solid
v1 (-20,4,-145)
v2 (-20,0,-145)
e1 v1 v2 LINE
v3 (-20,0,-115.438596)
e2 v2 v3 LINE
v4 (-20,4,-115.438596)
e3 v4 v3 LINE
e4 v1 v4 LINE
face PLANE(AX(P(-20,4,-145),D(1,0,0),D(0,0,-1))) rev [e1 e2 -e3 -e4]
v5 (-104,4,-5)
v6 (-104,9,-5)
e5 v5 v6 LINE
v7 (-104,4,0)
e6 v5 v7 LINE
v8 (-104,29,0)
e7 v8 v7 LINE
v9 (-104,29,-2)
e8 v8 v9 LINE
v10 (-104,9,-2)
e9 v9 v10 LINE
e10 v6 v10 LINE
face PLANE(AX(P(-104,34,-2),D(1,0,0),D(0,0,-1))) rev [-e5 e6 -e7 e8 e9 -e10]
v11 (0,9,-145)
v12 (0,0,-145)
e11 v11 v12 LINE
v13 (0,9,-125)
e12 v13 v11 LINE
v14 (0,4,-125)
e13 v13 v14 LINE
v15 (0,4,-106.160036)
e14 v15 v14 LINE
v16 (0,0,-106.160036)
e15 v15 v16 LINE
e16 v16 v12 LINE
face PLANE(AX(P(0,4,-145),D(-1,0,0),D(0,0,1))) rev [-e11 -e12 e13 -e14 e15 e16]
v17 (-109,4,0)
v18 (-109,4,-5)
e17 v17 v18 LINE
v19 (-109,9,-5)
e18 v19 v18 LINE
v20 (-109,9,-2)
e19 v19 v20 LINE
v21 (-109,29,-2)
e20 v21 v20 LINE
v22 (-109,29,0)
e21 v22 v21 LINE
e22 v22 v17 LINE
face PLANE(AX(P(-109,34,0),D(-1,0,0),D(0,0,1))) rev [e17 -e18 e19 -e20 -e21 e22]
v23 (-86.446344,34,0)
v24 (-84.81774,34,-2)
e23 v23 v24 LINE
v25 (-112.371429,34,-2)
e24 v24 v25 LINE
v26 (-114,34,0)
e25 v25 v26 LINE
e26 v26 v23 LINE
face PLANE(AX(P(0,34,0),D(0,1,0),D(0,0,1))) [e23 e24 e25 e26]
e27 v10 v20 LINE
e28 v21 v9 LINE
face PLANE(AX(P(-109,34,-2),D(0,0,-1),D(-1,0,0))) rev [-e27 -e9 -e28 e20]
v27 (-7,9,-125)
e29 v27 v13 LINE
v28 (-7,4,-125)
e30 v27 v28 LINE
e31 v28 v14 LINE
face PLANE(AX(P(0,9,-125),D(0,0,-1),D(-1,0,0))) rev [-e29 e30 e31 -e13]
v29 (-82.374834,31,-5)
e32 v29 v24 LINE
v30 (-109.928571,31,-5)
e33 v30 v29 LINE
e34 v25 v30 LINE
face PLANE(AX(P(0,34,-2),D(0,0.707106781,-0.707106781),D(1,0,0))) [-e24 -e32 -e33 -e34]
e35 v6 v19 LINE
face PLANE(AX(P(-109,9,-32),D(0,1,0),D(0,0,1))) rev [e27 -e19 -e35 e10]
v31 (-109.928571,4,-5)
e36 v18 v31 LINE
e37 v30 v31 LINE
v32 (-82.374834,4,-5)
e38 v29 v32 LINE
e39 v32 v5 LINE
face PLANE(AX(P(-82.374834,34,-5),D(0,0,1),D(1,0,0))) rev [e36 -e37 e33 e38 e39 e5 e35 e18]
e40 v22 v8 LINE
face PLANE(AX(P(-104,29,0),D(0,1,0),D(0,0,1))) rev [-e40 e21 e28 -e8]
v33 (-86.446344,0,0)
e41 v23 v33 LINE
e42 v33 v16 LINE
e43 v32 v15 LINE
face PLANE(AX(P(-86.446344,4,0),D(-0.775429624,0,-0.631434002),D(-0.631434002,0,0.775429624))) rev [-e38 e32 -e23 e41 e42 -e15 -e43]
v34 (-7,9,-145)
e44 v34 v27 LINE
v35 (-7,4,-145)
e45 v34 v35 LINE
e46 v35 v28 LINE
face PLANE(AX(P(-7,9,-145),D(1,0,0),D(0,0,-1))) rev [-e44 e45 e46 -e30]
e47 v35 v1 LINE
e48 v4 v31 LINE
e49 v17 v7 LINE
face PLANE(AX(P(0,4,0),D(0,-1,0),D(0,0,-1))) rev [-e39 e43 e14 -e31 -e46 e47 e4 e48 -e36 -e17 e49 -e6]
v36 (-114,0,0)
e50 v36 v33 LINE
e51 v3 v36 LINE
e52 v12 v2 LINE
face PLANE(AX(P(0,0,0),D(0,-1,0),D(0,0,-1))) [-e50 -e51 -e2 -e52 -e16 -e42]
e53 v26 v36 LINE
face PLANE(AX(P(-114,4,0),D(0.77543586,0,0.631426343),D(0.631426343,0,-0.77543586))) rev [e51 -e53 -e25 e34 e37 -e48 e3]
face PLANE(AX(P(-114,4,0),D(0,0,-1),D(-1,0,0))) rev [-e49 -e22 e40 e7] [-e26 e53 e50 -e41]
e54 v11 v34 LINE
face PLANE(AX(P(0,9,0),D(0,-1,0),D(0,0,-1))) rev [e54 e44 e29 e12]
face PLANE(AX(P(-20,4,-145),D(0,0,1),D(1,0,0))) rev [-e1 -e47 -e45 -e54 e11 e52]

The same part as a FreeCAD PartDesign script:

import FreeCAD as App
import Part
import Sketcher
from FreeCAD import Vector


def edges_at(feature, points):
    """Names of the edges that pass closest to the given points."""
    edges = feature.Shape.Edges
    near = lambda p: min(range(len(edges)), key=lambda i: edges[i].distToShape(Part.Vertex(*p))[0])
    return sorted({f"Edge{near(p) + 1}" for p in points})

doc = App.newDocument("Part")
body = doc.addObject("PartDesign::Body", "Body")

# Sketch on XZ plane
sketch1 = body.newObject("Sketcher::SketchObject", "Sketch")
sketch1.AttachmentSupport = (doc.getObject("XZ_Plane"), [""])
sketch1.MapMode = "FlatFace"
sketch1.addGeometry([
    Part.LineSegment(Vector(-114, 0, 0), Vector(-86, 0, 0)),  # 0
    Part.LineSegment(Vector(-86, 0, 0), Vector(0, -106, 0)),  # 1
    Part.LineSegment(Vector(0, -106, 0), Vector(0, -145, 0)),  # 2
    Part.LineSegment(Vector(0, -145, 0), Vector(-20, -145, 0)),  # 3
    Part.LineSegment(Vector(-20, -145, 0), Vector(-20, -115, 0)),  # 4
    Part.LineSegment(Vector(-20, -115, 0), Vector(-114, 0, 0)),  # 5
], False)
sketch1.addConstraint([
    Sketcher.Constraint("Coincident", 0, 2, 1, 1),
    Sketcher.Constraint("Coincident", 1, 2, 2, 1),
    Sketcher.Constraint("Coincident", 2, 2, 3, 1),
    Sketcher.Constraint("Coincident", 3, 2, 4, 1),
    Sketcher.Constraint("Coincident", 4, 2, 5, 1),
    Sketcher.Constraint("Coincident", 5, 2, 0, 1),
    Sketcher.Constraint("Horizontal", 0),
    Sketcher.Constraint("Vertical", 2),
    Sketcher.Constraint("Horizontal", 3),
    Sketcher.Constraint("Vertical", 4),
    Sketcher.Constraint("PointOnObject", 0, 2, -1),
    Sketcher.Constraint("PointOnObject", 1, 2, -2),
    Sketcher.Constraint("DistanceX", 3, 2, 3, 1, 20.0),
    Sketcher.Constraint("DistanceY", 2, 2, -1, 1, 145.0),
    Sketcher.Constraint("DistanceX", 5, 2, -1, 1, 114.0),
    Sketcher.Constraint("DistanceX", 0, 1, 0, 2, 27.553656),
    Sketcher.Constraint("DistanceY", 2, 2, 2, 1, 38.839964),
    Sketcher.Constraint("DistanceY", 4, 1, 4, 2, 29.561404),
])
pad1 = body.newObject("PartDesign::Pad", "Pad")
pad1.Profile = sketch1
pad1.Length = 4
pad1.Reversed = True

# Sketch on XZ plane
sketch2 = body.newObject("Sketcher::SketchObject", "Sketch001")
sketch2.AttachmentSupport = (doc.getObject("XZ_Plane"), [""])
sketch2.MapMode = "FlatFace"
sketch2.AttachmentOffset = App.Placement(Vector(0, 0, -4), App.Rotation())
sketch2.addGeometry([
    Part.LineSegment(Vector(-7, -145, 0), Vector(-7, -125, 0)),
    Part.LineSegment(Vector(-7, -125, 0), Vector(0, -125, 0)),
    Part.LineSegment(Vector(0, -125, 0), Vector(0, -145, 0)),
    Part.LineSegment(Vector(0, -145, 0), Vector(-7, -145, 0)),
], False)
sketch2.addConstraint([
    Sketcher.Constraint("Coincident", 0, 2, 1, 1),
    Sketcher.Constraint("Coincident", 1, 2, 2, 1),
    Sketcher.Constraint("Coincident", 2, 2, 3, 1),
    Sketcher.Constraint("Coincident", 3, 2, 0, 1),
    Sketcher.Constraint("Vertical", 0),
    Sketcher.Constraint("Horizontal", 1),
    Sketcher.Constraint("Vertical", 2),
    Sketcher.Constraint("Horizontal", 3),
    Sketcher.Constraint("PointOnObject", 1, 2, -2),
    Sketcher.Constraint("DistanceX", 1, 1, 1, 2, 7.0),
    Sketcher.Constraint("DistanceY", 0, 1, 0, 2, 20.0),
    Sketcher.Constraint("DistanceY", 0, 2, -1, 1, 125.0),
])
pad2 = body.newObject("PartDesign::Pad", "Pad001")
pad2.Profile = sketch2
pad2.Length = 5
pad2.Reversed = True

# Sketch on XZ plane
sketch3 = body.newObject("Sketcher::SketchObject", "Sketch002")
sketch3.AttachmentSupport = (doc.getObject("XZ_Plane"), [""])
sketch3.MapMode = "FlatFace"
sketch3.AttachmentOffset = App.Placement(Vector(0, 0, -4), App.Rotation())
sketch3.addGeometry([
    Part.LineSegment(Vector(-104, 0, 0), Vector(-86.4, 0, 0)),  # 0
    Part.LineSegment(Vector(-86.4, 0, 0), Vector(-82.4, -5, 0)),  # 1
    Part.LineSegment(Vector(-82.4, -5, 0), Vector(-109.9, -5, 0)),  # 2
    Part.LineSegment(Vector(-109.9, -5, 0), Vector(-114, 0, 0)),  # 3
    Part.LineSegment(Vector(-114, 0, 0), Vector(-109, 0, 0)),  # 4
    Part.LineSegment(Vector(-109, 0, 0), Vector(-109, -2, 0)),  # 5
    Part.LineSegment(Vector(-109, -2, 0), Vector(-104, -2, 0)),  # 6
    Part.LineSegment(Vector(-104, -2, 0), Vector(-104, 0, 0)),  # 7
], False)
sketch3.addConstraint([
    Sketcher.Constraint("Coincident", 0, 2, 1, 1),
    Sketcher.Constraint("Coincident", 1, 2, 2, 1),
    Sketcher.Constraint("Coincident", 2, 2, 3, 1),
    Sketcher.Constraint("Coincident", 3, 2, 4, 1),
    Sketcher.Constraint("Coincident", 4, 2, 5, 1),
    Sketcher.Constraint("Coincident", 5, 2, 6, 1),
    Sketcher.Constraint("Coincident", 6, 2, 7, 1),
    Sketcher.Constraint("Coincident", 7, 2, 0, 1),
    Sketcher.Constraint("Horizontal", 0),
    Sketcher.Constraint("Horizontal", 2),
    Sketcher.Constraint("Horizontal", 4),
    Sketcher.Constraint("Vertical", 5),
    Sketcher.Constraint("Horizontal", 6),
    Sketcher.Constraint("Vertical", 7),
    Sketcher.Constraint("PointOnObject", 0, 2, -1),
    Sketcher.Constraint("PointOnObject", 3, 2, -1),
    Sketcher.Constraint("Equal", 4, 6),
    Sketcher.Constraint("DistanceX", 4, 1, 4, 2, 5.0),
    Sketcher.Constraint("DistanceY", 5, 2, 5, 1, 2.0),
    Sketcher.Constraint("DistanceY", 1, 2, -1, 1, 5.0),
    Sketcher.Constraint("DistanceX", 3, 2, -1, 1, 114.0),
    Sketcher.Constraint("Distance", 1, 6.448038),
    Sketcher.Constraint("DistanceX", 0, 1, 0, 2, 17.553656),
    Sketcher.Constraint("DistanceX", 2, 2, 2, 1, 27.553738),
])
pad3 = body.newObject("PartDesign::Pad", "Pad002")
pad3.Profile = sketch3
pad3.Length = 30
pad3.Reversed = True

# Sketch on XY plane
sketch4 = body.newObject("Sketcher::SketchObject", "Sketch003")
sketch4.AttachmentSupport = (doc.getObject("XY_Plane"), [""])
sketch4.MapMode = "FlatFace"
sketch4.AttachmentOffset = App.Placement(Vector(0, 0, -2), App.Rotation())
sketch4.addGeometry([
    Part.LineSegment(Vector(-109, 9, 0), Vector(-109, 4, 0)),
    Part.LineSegment(Vector(-109, 4, 0), Vector(-104, 4, 0)),
    Part.LineSegment(Vector(-104, 4, 0), Vector(-104, 9, 0)),
    Part.LineSegment(Vector(-104, 9, 0), Vector(-109, 9, 0)),
], False)
sketch4.addConstraint([
    Sketcher.Constraint("Coincident", 0, 2, 1, 1),
    Sketcher.Constraint("Coincident", 1, 2, 2, 1),
    Sketcher.Constraint("Coincident", 2, 2, 3, 1),
    Sketcher.Constraint("Coincident", 3, 2, 0, 1),
    Sketcher.Constraint("Vertical", 0),
    Sketcher.Constraint("Horizontal", 1),
    Sketcher.Constraint("Vertical", 2),
    Sketcher.Constraint("Horizontal", 3),
    Sketcher.Constraint("Equal", 3, 0),
    Sketcher.Constraint("DistanceX", 1, 1, 1, 2, 5.0),
    Sketcher.Constraint("DistanceX", 0, 2, -1, 1, 109.0),
    Sketcher.Constraint("DistanceY", -1, 1, 0, 2, 4.0),
])
pocket1 = body.newObject("PartDesign::Pocket", "Pocket")
pocket1.Profile = sketch4
pocket1.Length = 30

# Sketch on XY plane
sketch5 = body.newObject("Sketcher::SketchObject", "Sketch004")
sketch5.AttachmentSupport = (doc.getObject("XY_Plane"), [""])
sketch5.MapMode = "FlatFace"
sketch5.AttachmentOffset = App.Placement(Vector(0, 0, -2), App.Rotation())
sketch5.addGeometry([
    Part.LineSegment(Vector(-109, 34, 0), Vector(-109, 29, 0)),
    Part.LineSegment(Vector(-109, 29, 0), Vector(-104, 29, 0)),
    Part.LineSegment(Vector(-104, 29, 0), Vector(-104, 34, 0)),
    Part.LineSegment(Vector(-104, 34, 0), Vector(-109, 34, 0)),
], False)
sketch5.addConstraint([
    Sketcher.Constraint("Coincident", 0, 2, 1, 1),
    Sketcher.Constraint("Coincident", 1, 2, 2, 1),
    Sketcher.Constraint("Coincident", 2, 2, 3, 1),
    Sketcher.Constraint("Coincident", 3, 2, 0, 1),
    Sketcher.Constraint("Vertical", 0),
    Sketcher.Constraint("Horizontal", 1),
    Sketcher.Constraint("Vertical", 2),
    Sketcher.Constraint("Horizontal", 3),
    Sketcher.Constraint("Equal", 3, 0),
    Sketcher.Constraint("DistanceX", 1, 1, 1, 2, 5.0),
    Sketcher.Constraint("DistanceX", 0, 2, -1, 1, 109.0),
    Sketcher.Constraint("DistanceY", -1, 1, 0, 2, 29.0),
])
pad4 = body.newObject("PartDesign::Pad", "Pad003")
pad4.Profile = sketch5
pad4.Length = 2
doc.recompute()

chamfer = body.newObject("PartDesign::Chamfer", "Chamfer")
chamfer.Base = (pad4, edges_at(pad4, [(-96.152, 34, -5)]))
chamfer.Size = 3

doc.recompute()
